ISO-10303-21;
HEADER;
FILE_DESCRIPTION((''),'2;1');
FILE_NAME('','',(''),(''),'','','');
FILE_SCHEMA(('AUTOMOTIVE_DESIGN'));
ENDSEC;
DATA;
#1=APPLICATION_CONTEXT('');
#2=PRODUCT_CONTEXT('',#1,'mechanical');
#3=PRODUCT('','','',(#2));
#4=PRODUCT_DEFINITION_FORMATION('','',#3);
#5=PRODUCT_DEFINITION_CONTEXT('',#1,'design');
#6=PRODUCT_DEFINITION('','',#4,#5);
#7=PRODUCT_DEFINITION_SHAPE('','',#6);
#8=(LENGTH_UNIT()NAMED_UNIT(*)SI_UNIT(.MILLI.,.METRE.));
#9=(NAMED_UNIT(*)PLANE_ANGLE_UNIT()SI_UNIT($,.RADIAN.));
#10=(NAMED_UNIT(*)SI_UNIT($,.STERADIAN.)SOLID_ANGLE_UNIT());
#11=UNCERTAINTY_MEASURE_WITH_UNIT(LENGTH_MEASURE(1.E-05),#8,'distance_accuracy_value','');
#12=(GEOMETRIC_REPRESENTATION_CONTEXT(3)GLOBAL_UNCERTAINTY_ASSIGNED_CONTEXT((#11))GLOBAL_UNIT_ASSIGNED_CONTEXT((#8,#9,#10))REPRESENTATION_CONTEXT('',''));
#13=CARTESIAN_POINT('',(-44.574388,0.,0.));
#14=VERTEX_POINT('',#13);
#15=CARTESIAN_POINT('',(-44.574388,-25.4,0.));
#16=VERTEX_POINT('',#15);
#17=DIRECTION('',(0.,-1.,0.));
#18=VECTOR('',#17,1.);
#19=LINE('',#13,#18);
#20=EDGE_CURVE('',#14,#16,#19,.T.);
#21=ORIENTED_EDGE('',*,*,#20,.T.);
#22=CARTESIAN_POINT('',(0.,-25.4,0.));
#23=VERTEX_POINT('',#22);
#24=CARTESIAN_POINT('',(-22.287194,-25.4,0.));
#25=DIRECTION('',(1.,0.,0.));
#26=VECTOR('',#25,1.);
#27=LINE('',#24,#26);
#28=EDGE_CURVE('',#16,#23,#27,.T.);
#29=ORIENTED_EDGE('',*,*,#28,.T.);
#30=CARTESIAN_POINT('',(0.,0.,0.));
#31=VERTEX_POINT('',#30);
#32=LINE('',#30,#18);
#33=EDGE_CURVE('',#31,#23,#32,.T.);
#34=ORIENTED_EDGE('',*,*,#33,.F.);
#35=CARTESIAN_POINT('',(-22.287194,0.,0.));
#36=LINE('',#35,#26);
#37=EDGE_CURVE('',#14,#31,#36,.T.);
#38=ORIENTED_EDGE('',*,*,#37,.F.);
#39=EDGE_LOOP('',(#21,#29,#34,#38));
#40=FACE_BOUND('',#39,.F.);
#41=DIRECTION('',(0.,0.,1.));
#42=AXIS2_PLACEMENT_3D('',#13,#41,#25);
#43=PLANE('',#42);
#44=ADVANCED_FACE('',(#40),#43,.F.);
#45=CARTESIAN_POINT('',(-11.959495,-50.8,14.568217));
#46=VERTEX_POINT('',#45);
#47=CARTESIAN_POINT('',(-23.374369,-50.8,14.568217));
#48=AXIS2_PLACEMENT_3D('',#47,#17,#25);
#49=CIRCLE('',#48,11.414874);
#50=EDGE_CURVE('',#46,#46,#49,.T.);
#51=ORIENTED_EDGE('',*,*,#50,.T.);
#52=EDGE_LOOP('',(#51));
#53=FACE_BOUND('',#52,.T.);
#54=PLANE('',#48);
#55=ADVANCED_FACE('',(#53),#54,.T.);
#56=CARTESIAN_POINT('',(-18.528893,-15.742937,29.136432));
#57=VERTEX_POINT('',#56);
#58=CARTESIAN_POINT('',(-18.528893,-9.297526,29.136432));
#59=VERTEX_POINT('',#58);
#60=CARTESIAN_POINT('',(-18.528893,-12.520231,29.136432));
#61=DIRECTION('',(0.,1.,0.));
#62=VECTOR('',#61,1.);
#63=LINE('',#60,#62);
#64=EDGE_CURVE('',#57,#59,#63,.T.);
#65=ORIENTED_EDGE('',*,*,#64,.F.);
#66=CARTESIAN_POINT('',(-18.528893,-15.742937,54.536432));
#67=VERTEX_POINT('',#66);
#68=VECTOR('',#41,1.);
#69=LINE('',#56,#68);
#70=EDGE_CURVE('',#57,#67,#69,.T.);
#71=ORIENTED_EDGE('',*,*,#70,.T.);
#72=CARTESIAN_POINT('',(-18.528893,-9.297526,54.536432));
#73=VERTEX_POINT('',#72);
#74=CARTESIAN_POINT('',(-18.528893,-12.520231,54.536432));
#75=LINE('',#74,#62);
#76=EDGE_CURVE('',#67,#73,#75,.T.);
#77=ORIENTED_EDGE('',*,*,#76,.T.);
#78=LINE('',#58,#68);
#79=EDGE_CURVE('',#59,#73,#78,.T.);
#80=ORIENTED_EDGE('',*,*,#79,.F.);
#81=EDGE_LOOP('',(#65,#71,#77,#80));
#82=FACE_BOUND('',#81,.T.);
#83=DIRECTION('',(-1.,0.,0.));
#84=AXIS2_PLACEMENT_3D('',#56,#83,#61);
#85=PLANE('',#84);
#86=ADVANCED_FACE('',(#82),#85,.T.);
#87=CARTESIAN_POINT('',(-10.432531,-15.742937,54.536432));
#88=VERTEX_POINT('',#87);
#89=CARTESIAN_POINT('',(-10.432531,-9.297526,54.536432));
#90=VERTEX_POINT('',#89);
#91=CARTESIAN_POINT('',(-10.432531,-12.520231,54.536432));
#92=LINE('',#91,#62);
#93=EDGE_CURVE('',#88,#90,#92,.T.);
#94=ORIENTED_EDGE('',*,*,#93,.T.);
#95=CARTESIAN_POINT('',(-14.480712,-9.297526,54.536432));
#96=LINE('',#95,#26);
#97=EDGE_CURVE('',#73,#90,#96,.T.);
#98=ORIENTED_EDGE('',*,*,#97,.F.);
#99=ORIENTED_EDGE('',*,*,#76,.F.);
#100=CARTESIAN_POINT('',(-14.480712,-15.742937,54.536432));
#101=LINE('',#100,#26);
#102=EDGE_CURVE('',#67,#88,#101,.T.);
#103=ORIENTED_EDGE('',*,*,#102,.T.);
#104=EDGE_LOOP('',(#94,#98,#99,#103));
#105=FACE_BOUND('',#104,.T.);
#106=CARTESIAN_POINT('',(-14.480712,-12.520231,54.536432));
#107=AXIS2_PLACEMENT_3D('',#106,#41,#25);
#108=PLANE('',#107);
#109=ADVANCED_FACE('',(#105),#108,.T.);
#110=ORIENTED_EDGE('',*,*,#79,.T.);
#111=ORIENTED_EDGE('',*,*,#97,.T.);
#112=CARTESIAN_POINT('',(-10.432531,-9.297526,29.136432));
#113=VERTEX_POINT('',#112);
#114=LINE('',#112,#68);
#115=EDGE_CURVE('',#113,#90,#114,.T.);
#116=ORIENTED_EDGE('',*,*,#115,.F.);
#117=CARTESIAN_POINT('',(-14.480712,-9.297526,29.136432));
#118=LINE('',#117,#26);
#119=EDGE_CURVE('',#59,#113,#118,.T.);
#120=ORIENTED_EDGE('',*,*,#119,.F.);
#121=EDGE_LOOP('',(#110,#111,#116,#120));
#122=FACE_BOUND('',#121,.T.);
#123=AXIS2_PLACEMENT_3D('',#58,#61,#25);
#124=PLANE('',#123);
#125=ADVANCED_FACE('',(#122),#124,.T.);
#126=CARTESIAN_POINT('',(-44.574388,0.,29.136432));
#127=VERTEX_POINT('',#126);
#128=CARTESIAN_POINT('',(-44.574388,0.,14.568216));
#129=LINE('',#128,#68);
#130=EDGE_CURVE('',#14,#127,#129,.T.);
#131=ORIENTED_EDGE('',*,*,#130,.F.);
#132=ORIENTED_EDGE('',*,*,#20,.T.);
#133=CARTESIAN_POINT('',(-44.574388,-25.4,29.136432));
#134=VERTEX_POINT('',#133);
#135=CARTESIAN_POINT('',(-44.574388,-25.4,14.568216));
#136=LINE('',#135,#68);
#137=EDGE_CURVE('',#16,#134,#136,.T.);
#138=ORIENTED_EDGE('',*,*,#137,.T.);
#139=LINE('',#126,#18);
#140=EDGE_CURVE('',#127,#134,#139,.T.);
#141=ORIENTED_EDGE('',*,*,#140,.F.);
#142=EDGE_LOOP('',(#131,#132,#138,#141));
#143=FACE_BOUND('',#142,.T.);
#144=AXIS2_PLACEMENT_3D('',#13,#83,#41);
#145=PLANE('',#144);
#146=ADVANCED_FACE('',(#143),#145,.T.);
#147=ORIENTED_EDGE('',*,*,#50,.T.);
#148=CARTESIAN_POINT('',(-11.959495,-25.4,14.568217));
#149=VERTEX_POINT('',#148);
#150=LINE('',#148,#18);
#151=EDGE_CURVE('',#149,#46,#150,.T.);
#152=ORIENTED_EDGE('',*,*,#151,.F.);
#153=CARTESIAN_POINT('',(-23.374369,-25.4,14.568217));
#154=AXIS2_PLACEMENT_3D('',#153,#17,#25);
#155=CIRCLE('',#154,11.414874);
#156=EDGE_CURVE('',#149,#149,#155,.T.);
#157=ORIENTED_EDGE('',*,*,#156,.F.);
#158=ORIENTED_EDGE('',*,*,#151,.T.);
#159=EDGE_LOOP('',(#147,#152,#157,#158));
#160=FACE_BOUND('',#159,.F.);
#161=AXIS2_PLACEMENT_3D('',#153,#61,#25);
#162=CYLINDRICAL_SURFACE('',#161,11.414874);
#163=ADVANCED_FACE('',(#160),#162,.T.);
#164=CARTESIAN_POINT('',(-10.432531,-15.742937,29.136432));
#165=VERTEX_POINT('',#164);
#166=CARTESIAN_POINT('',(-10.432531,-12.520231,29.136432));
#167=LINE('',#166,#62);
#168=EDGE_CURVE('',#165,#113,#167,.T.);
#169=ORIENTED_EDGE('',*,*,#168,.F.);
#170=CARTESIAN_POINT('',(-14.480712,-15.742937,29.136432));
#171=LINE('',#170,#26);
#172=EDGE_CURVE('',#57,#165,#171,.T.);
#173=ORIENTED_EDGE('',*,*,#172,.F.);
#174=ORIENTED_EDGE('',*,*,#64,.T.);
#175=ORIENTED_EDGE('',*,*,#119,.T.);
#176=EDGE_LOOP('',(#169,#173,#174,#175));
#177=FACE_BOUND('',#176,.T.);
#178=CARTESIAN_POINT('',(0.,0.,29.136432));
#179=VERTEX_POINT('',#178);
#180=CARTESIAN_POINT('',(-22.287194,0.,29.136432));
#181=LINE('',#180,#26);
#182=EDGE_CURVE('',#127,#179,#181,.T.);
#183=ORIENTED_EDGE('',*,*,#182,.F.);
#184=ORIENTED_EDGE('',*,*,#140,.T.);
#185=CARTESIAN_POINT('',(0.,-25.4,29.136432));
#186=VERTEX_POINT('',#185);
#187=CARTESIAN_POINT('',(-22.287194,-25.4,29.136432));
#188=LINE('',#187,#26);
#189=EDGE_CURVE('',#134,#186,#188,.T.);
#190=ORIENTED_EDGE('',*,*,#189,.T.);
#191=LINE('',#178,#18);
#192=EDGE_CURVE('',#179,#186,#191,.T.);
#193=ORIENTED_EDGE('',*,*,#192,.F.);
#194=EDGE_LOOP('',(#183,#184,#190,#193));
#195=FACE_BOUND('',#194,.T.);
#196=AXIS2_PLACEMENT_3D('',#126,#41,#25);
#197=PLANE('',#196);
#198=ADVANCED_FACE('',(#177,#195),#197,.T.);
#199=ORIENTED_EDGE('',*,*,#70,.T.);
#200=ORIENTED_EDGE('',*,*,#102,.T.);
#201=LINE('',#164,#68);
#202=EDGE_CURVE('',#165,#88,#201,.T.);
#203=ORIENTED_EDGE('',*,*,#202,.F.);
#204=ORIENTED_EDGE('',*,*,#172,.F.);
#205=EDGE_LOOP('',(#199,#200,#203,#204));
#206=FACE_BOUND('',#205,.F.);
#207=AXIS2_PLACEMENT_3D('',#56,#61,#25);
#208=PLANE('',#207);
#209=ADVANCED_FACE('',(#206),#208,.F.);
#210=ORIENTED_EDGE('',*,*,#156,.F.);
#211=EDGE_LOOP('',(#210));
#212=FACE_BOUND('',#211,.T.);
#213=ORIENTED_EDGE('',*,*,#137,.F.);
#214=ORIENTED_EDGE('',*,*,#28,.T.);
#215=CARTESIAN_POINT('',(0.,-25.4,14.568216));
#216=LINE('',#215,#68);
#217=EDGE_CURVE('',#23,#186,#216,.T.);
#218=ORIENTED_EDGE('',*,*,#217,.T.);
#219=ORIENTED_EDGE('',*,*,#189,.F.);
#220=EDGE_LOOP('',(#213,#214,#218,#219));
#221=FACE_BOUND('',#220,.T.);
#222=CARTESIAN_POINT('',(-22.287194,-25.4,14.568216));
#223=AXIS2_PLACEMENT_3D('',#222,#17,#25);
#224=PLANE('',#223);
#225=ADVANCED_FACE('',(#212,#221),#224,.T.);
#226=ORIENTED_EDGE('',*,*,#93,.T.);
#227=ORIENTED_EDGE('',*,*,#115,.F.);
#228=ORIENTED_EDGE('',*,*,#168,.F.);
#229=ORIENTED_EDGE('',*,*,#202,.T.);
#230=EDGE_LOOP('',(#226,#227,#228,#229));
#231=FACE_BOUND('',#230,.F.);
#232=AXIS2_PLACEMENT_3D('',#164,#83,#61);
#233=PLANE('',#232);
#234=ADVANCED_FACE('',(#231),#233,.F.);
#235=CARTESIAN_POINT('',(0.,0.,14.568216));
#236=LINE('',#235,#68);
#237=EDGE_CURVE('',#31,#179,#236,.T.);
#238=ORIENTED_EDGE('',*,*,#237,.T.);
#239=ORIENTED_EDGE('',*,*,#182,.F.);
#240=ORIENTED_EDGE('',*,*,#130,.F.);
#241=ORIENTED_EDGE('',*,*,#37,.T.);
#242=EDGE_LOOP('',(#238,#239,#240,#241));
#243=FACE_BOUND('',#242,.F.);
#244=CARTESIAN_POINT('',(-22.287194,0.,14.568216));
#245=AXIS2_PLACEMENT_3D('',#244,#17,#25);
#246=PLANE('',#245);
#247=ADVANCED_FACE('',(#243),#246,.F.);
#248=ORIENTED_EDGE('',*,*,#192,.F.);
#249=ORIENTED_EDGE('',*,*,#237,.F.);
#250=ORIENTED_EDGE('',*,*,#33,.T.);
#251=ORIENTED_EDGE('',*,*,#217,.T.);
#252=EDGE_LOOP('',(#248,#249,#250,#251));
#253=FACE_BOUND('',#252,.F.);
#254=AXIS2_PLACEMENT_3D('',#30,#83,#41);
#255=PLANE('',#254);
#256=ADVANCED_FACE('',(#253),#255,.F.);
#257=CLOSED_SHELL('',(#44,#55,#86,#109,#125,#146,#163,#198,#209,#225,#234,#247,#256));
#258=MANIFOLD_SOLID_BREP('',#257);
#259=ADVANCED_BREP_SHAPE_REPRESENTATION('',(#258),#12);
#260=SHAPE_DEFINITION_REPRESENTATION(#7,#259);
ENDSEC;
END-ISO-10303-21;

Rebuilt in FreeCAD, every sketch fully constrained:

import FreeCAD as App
import Part
import Sketcher

V = App.Vector

doc = App.newDocument("Part")
params = doc.addObject("Spreadsheet::Sheet", "Params")
for row, (alias, value) in enumerate([
    ("pad1_length", "1 in"),
    ("pad2_length", "1 in"),
    ("pad3_length", "1 in"),
], start=1):
    params.set(f"A{row}", alias)
    params.set(f"B{row}", "=" + value)
    params.setAlias(f"B{row}", alias)

body = doc.addObject("PartDesign::Body", "Body")

# Sketch on XZ plane
sketch1 = body.newObject("Sketcher::SketchObject", "Sketch")
sketch1.AttachmentSupport = (doc.getObject("XZ_Plane"), [""])
sketch1.MapMode = "FlatFace"
sketch1.addGeometry(Part.LineSegment(V(-45, 29, 0), V(-45, 0, 0)), False)
sketch1.addGeometry(Part.LineSegment(V(-45, 0, 0), V(0, 0, 0)), False)
sketch1.addGeometry(Part.LineSegment(V(0, 0, 0), V(0, 29, 0)), False)
sketch1.addGeometry(Part.LineSegment(V(0, 29, 0), V(-45, 29, 0)), False)
sketch1.addConstraint(Sketcher.Constraint("Coincident", 0, 2, 1, 1))
sketch1.addConstraint(Sketcher.Constraint("Coincident", 1, 2, 2, 1))
sketch1.addConstraint(Sketcher.Constraint("Coincident", 2, 2, 3, 1))
sketch1.addConstraint(Sketcher.Constraint("Coincident", 3, 2, 0, 1))
sketch1.addConstraint(Sketcher.Constraint("Vertical", 0))
sketch1.addConstraint(Sketcher.Constraint("Horizontal", 1))
sketch1.addConstraint(Sketcher.Constraint("Vertical", 2))
sketch1.addConstraint(Sketcher.Constraint("Horizontal", 3))
sketch1.addConstraint(Sketcher.Constraint("Coincident", 1, 2, -1, 1))
sketch1.addConstraint(Sketcher.Constraint("DistanceY", 0, 2, 0, 1, 29.136432))
sketch1.addConstraint(Sketcher.Constraint("DistanceX", 1, 1, 1, 2, 44.574387))
pad1 = body.newObject("PartDesign::Pad", "Pad")
pad1.Profile = sketch1
pad1.setExpression("Length", "Params.pad1_length")

# Sketch on XY plane
sketch2 = body.newObject("Sketcher::SketchObject", "Sketch001")
sketch2.AttachmentSupport = (doc.getObject("XY_Plane"), [""])
sketch2.MapMode = "FlatFace"
sketch2.AttachmentOffset = App.Placement(V(0, 0, 29.136432), App.Rotation())
sketch2.addGeometry(Part.LineSegment(V(-19, -9, 0), V(-19, -16, 0)), False)
sketch2.addGeometry(Part.LineSegment(V(-19, -16, 0), V(-10, -16, 0)), False)
sketch2.addGeometry(Part.LineSegment(V(-10, -16, 0), V(-10, -9, 0)), False)
sketch2.addGeometry(Part.LineSegment(V(-10, -9, 0), V(-19, -9, 0)), False)
sketch2.addConstraint(Sketcher.Constraint("Coincident", 0, 2, 1, 1))
sketch2.addConstraint(Sketcher.Constraint("Coincident", 1, 2, 2, 1))
sketch2.addConstraint(Sketcher.Constraint("Coincident", 2, 2, 3, 1))
sketch2.addConstraint(Sketcher.Constraint("Coincident", 3, 2, 0, 1))
sketch2.addConstraint(Sketcher.Constraint("Vertical", 0))
sketch2.addConstraint(Sketcher.Constraint("Horizontal", 1))
sketch2.addConstraint(Sketcher.Constraint("Vertical", 2))
sketch2.addConstraint(Sketcher.Constraint("Horizontal", 3))
sketch2.addConstraint(Sketcher.Constraint("DistanceY", 0, 2, 0, 1, 6.445411))
sketch2.addConstraint(Sketcher.Constraint("DistanceX", 1, 1, 1, 2, 8.096363))
sketch2.addConstraint(Sketcher.Constraint("DistanceX", 1, 2, -1, 1, 10.432531))
sketch2.addConstraint(Sketcher.Constraint("DistanceY", 0, 2, -1, 1, 15.742937))
pad2 = body.newObject("PartDesign::Pad", "Pad001")
pad2.Profile = sketch2
pad2.setExpression("Length", "Params.pad2_length")

# Sketch on XZ plane
sketch3 = body.newObject("Sketcher::SketchObject", "Sketch002")
sketch3.AttachmentSupport = (doc.getObject("XZ_Plane"), [""])
sketch3.MapMode = "FlatFace"
sketch3.AttachmentOffset = App.Placement(V(0, 0, 1 * 25.4), App.Rotation())
sketch3.addGeometry(Part.Circle(V(-23, 15, 0), V(0, 0, 1), 11), False)
sketch3.addConstraint(Sketcher.Constraint("Diameter", 0, 22.829748))
sketch3.addConstraint(Sketcher.Constraint("DistanceX", 0, 3, -1, 1, 23.374369))
sketch3.addConstraint(Sketcher.Constraint("DistanceY", -1, 1, 0, 3, 14.568217))
pad3 = body.newObject("PartDesign::Pad", "Pad002")
pad3.Profile = sketch3
pad3.setExpression("Length", "Params.pad3_length")

doc.recompute()
